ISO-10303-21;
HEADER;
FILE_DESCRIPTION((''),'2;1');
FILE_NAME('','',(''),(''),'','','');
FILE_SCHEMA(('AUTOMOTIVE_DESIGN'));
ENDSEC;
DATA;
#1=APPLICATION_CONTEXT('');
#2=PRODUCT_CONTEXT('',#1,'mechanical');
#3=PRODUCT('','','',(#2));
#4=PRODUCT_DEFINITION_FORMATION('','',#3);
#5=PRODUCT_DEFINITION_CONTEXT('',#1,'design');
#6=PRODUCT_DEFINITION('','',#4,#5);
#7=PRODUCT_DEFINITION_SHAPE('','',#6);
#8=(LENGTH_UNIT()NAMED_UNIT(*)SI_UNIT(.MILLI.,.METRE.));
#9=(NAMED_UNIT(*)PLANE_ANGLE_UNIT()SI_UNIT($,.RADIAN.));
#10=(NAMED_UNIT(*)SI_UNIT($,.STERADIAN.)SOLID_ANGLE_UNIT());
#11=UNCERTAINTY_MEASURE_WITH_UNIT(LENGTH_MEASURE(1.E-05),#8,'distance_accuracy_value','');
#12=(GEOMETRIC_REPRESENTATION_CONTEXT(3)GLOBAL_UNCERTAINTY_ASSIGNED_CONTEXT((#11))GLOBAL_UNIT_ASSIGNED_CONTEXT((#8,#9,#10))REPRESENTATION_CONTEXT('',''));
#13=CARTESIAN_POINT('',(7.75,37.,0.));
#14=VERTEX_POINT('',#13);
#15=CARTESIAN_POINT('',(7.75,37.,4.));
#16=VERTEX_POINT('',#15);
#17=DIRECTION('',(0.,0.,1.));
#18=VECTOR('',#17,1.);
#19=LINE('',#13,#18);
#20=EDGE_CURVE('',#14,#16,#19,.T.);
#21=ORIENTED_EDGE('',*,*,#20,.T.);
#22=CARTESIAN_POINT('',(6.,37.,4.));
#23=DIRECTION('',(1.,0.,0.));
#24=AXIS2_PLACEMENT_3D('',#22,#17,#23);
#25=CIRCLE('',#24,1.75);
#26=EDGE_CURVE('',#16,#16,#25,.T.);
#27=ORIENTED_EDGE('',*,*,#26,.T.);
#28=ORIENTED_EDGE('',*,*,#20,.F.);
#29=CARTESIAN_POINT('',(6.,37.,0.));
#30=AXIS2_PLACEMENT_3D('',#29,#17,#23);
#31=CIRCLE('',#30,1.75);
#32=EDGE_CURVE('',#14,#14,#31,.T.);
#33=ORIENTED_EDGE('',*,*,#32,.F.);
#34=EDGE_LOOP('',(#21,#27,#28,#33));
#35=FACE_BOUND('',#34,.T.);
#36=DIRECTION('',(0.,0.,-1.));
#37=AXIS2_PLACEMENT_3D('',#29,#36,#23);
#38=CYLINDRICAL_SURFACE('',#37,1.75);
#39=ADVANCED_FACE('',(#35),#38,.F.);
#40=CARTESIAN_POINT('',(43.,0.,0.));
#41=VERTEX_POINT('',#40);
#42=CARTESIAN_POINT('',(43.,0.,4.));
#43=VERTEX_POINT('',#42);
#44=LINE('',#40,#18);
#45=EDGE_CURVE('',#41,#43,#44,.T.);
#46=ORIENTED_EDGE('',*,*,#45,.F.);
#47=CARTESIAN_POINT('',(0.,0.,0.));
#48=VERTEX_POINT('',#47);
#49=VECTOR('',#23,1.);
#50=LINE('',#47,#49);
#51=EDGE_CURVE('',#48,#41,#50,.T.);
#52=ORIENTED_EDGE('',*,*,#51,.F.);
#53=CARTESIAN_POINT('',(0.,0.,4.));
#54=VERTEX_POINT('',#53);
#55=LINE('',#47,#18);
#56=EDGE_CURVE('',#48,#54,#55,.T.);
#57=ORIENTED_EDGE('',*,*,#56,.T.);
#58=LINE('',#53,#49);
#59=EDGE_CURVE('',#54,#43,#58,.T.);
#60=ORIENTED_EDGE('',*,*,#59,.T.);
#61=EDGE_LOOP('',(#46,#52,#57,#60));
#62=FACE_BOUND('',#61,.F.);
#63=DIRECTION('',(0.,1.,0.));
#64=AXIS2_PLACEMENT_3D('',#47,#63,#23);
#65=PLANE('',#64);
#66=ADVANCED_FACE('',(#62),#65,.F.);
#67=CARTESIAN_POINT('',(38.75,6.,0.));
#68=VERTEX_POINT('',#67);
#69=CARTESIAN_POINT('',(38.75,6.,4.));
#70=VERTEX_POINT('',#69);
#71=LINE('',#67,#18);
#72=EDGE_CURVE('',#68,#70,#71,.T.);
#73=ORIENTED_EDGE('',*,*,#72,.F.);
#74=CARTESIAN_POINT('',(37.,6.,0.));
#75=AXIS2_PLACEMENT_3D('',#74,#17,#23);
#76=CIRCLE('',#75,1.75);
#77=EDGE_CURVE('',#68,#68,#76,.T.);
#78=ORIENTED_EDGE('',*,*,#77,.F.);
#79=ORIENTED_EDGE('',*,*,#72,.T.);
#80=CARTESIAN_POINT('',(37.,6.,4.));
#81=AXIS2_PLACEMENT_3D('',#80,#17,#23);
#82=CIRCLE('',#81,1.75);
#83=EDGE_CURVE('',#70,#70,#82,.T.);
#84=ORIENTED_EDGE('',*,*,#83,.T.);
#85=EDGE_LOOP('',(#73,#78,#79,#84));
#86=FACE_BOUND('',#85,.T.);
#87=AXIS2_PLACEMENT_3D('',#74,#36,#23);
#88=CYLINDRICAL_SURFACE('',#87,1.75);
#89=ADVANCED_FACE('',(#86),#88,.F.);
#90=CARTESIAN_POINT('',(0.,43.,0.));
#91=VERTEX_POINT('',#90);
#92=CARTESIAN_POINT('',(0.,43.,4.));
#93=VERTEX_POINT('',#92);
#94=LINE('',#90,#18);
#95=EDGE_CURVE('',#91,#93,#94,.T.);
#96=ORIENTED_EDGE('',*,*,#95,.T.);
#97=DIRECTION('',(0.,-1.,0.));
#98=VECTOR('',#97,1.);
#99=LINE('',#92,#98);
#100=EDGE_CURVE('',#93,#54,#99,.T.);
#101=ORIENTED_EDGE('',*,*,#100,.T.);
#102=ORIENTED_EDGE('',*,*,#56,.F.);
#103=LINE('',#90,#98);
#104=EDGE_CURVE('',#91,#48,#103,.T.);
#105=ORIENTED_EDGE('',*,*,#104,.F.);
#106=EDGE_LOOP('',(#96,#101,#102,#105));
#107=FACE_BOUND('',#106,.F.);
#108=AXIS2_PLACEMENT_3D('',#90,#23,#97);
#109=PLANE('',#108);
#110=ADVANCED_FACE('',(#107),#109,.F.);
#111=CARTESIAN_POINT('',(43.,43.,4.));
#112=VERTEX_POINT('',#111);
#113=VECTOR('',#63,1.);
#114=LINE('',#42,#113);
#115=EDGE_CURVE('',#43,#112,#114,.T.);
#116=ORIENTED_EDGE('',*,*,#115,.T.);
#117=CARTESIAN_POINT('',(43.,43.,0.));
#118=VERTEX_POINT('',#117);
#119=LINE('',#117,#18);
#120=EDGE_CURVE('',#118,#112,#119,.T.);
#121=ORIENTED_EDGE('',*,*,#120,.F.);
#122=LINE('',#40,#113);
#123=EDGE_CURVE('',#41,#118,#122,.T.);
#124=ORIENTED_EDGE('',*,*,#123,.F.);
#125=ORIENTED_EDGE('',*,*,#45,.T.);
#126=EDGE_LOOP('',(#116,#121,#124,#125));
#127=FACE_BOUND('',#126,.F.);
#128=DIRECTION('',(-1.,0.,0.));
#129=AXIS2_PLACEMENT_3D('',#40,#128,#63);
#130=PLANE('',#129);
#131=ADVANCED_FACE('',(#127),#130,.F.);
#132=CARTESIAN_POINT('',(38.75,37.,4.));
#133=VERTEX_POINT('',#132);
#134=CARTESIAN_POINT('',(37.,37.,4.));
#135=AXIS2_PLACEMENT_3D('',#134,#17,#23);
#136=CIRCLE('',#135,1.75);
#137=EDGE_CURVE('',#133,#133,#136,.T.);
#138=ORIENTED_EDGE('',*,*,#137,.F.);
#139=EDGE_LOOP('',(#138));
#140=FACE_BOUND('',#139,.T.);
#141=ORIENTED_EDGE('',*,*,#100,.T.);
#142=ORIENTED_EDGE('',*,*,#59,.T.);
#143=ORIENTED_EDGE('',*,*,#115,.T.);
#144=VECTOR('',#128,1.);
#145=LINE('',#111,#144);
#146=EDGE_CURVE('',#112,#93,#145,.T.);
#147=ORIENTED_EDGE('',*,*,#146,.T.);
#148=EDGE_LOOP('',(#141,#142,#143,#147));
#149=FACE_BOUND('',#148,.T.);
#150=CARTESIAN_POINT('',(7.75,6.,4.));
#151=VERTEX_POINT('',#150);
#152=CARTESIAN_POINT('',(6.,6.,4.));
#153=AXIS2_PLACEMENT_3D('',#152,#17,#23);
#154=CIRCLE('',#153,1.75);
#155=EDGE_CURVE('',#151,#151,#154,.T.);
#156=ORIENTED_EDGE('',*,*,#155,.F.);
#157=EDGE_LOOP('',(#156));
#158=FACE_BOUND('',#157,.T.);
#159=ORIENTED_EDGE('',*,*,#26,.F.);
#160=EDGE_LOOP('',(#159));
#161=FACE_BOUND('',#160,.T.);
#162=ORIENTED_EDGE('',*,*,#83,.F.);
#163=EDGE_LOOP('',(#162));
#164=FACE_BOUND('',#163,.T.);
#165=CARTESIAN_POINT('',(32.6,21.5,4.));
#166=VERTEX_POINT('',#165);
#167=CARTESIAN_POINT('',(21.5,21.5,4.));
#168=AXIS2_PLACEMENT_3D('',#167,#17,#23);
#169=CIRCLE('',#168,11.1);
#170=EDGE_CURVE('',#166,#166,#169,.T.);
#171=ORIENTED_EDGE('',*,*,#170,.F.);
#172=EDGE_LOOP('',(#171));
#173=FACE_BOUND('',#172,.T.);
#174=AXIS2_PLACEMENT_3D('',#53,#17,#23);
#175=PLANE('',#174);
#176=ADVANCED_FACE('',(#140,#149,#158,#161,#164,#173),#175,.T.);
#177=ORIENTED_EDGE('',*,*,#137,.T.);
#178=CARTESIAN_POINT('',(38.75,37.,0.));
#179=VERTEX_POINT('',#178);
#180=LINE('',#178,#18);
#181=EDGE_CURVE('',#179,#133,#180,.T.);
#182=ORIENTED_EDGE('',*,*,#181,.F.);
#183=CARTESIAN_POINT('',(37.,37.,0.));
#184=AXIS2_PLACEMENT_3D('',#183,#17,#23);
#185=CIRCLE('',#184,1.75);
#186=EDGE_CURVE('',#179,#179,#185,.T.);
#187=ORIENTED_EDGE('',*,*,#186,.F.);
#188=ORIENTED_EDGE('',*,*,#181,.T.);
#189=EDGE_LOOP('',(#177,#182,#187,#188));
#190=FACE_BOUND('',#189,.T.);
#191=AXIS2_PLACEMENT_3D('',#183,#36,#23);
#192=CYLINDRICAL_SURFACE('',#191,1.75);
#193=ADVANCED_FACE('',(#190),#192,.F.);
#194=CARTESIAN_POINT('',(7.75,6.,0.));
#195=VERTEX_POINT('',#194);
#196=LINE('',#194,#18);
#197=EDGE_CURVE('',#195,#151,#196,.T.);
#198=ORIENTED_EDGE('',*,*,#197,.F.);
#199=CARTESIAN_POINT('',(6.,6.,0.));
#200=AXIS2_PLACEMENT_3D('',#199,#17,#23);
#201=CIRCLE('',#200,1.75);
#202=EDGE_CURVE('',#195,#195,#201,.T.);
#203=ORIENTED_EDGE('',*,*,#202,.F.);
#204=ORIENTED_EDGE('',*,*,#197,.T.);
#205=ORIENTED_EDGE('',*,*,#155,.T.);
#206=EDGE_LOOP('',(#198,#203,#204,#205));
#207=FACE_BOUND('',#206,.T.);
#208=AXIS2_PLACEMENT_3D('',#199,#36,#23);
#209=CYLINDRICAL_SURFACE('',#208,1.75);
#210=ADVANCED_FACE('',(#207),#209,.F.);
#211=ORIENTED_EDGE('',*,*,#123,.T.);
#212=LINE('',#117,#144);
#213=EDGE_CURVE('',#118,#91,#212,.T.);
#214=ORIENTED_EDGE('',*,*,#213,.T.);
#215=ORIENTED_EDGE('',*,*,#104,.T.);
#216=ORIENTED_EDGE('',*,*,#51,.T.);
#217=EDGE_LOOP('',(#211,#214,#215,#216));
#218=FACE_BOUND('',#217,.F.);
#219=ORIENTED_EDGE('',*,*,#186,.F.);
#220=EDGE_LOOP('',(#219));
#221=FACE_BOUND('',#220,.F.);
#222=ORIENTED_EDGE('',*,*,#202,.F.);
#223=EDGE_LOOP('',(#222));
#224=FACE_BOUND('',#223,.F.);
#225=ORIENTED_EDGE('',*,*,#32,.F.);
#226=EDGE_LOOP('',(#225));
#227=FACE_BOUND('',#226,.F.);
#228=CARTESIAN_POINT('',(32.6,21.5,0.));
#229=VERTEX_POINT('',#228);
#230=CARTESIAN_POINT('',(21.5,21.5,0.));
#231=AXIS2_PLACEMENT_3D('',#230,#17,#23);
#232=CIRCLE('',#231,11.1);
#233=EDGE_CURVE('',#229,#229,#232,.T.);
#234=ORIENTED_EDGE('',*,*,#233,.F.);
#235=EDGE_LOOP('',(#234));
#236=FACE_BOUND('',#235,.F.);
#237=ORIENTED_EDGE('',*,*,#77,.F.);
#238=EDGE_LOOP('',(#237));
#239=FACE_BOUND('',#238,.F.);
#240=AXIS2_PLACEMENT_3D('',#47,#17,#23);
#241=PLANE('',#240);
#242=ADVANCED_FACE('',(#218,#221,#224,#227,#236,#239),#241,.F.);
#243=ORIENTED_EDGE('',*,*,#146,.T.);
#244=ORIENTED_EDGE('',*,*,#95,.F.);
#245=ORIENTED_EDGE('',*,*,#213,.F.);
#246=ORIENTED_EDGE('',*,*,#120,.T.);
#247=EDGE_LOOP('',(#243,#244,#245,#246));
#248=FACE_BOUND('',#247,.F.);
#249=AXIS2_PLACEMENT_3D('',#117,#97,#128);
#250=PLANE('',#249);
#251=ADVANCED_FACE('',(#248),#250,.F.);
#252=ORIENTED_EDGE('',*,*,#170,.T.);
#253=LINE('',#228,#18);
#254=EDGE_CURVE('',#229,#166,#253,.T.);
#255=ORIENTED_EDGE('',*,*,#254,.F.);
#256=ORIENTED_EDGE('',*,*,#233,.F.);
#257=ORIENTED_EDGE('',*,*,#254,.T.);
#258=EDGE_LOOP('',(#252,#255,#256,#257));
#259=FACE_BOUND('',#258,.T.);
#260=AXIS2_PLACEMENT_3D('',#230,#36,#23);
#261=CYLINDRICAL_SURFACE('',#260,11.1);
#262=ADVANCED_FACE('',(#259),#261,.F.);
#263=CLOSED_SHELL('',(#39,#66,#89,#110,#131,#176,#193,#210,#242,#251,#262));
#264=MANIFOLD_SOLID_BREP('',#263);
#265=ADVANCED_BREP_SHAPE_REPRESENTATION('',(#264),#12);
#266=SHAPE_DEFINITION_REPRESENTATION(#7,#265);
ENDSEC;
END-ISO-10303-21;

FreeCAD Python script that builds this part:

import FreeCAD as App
import Part
import Sketcher
from FreeCAD import Vector


def add_polygon(sketch, points):
    """Adds a closed chain of lines whose ends are joined by coincident constraints."""
    first, n = sketch.GeometryCount, len(points)
    for a, b in zip(points, points[1:] + points[:1]):
        sketch.addGeometry(Part.LineSegment(App.Vector(*a, 0), App.Vector(*b, 0)), False)
    for i in range(n):
        sketch.addConstraint(Sketcher.Constraint("Coincident", first + i, 2, first + (i + 1) % n, 1))

doc = App.newDocument("Part")
body = doc.addObject("PartDesign::Body", "Body")

# Sketch on XY plane
sketch1 = body.newObject("Sketcher::SketchObject", "Sketch")
sketch1.AttachmentSupport = (doc.getObject("XY_Plane"), [""])
sketch1.MapMode = "FlatFace"
add_polygon(sketch1, [(0, 43), (0, 0), (43, 0), (43, 43)])  # lines 0-3
sketch1.addGeometry(Part.Circle(Vector(6, 6, 0), Vector(0, 0, 1), 1.8), False)  # 4
sketch1.addGeometry(Part.Circle(Vector(37, 6, 0), Vector(0, 0, 1), 1.8), False)  # 5
sketch1.addGeometry(Part.Circle(Vector(6, 37, 0), Vector(0, 0, 1), 1.8), False)  # 6
sketch1.addGeometry(Part.Circle(Vector(21.5, 21.5, 0), Vector(0, 0, 1), 11.1), False)  # 7
sketch1.addGeometry(Part.Circle(Vector(37, 37, 0), Vector(0, 0, 1), 1.8), False)  # 8
sketch1.addConstraint(Sketcher.Constraint("Vertical", 0))
sketch1.addConstraint(Sketcher.Constraint("Horizontal", 1))
sketch1.addConstraint(Sketcher.Constraint("Vertical", 2))
sketch1.addConstraint(Sketcher.Constraint("Horizontal", 3))
sketch1.addConstraint(Sketcher.Constraint("Coincident", 0, 2, -1, 1))
sketch1.addConstraint(Sketcher.Constraint("Equal", 4, 5))
sketch1.addConstraint(Sketcher.Constraint("Equal", 5, 6))
sketch1.addConstraint(Sketcher.Constraint("Equal", 6, 8))
sketch1.addConstraint(Sketcher.Constraint("Horizontal", 4, 3, 5, 3))
sketch1.addConstraint(Sketcher.Constraint("Horizontal", 6, 3, 8, 3))
sketch1.addConstraint(Sketcher.Constraint("Vertical", 4, 3, 6, 3))
sketch1.addConstraint(Sketcher.Constraint("Vertical", 5, 3, 8, 3))
sketch1.addConstraint(Sketcher.Constraint("Equal", 3, 0))
sketch1.addConstraint(Sketcher.Constraint("Diameter", 4, 3.5))
sketch1.addConstraint(Sketcher.Constraint("Diameter", 7, 22.2))
sketch1.addConstraint(Sketcher.Constraint("DistanceX", 1, 1, 1, 2, 43.0))
sketch1.addConstraint(Sketcher.Constraint("DistanceX", 4, 3, 5, 3, 31.0))
sketch1.addConstraint(Sketcher.Constraint("DistanceY", 4, 3, 6, 3, 31.0))
sketch1.addConstraint(Sketcher.Constraint("DistanceX", -1, 1, 4, 3, 6.0))
sketch1.addConstraint(Sketcher.Constraint("DistanceY", -1, 1, 4, 3, 6.0))
sketch1.addConstraint(Sketcher.Constraint("DistanceX", -1, 1, 7, 3, 21.5))
sketch1.addConstraint(Sketcher.Constraint("DistanceY", -1, 1, 7, 3, 21.5))
pad1 = body.newObject("PartDesign::Pad", "Pad")
pad1.Profile = sketch1
pad1.Length = 4

doc.recompute()
